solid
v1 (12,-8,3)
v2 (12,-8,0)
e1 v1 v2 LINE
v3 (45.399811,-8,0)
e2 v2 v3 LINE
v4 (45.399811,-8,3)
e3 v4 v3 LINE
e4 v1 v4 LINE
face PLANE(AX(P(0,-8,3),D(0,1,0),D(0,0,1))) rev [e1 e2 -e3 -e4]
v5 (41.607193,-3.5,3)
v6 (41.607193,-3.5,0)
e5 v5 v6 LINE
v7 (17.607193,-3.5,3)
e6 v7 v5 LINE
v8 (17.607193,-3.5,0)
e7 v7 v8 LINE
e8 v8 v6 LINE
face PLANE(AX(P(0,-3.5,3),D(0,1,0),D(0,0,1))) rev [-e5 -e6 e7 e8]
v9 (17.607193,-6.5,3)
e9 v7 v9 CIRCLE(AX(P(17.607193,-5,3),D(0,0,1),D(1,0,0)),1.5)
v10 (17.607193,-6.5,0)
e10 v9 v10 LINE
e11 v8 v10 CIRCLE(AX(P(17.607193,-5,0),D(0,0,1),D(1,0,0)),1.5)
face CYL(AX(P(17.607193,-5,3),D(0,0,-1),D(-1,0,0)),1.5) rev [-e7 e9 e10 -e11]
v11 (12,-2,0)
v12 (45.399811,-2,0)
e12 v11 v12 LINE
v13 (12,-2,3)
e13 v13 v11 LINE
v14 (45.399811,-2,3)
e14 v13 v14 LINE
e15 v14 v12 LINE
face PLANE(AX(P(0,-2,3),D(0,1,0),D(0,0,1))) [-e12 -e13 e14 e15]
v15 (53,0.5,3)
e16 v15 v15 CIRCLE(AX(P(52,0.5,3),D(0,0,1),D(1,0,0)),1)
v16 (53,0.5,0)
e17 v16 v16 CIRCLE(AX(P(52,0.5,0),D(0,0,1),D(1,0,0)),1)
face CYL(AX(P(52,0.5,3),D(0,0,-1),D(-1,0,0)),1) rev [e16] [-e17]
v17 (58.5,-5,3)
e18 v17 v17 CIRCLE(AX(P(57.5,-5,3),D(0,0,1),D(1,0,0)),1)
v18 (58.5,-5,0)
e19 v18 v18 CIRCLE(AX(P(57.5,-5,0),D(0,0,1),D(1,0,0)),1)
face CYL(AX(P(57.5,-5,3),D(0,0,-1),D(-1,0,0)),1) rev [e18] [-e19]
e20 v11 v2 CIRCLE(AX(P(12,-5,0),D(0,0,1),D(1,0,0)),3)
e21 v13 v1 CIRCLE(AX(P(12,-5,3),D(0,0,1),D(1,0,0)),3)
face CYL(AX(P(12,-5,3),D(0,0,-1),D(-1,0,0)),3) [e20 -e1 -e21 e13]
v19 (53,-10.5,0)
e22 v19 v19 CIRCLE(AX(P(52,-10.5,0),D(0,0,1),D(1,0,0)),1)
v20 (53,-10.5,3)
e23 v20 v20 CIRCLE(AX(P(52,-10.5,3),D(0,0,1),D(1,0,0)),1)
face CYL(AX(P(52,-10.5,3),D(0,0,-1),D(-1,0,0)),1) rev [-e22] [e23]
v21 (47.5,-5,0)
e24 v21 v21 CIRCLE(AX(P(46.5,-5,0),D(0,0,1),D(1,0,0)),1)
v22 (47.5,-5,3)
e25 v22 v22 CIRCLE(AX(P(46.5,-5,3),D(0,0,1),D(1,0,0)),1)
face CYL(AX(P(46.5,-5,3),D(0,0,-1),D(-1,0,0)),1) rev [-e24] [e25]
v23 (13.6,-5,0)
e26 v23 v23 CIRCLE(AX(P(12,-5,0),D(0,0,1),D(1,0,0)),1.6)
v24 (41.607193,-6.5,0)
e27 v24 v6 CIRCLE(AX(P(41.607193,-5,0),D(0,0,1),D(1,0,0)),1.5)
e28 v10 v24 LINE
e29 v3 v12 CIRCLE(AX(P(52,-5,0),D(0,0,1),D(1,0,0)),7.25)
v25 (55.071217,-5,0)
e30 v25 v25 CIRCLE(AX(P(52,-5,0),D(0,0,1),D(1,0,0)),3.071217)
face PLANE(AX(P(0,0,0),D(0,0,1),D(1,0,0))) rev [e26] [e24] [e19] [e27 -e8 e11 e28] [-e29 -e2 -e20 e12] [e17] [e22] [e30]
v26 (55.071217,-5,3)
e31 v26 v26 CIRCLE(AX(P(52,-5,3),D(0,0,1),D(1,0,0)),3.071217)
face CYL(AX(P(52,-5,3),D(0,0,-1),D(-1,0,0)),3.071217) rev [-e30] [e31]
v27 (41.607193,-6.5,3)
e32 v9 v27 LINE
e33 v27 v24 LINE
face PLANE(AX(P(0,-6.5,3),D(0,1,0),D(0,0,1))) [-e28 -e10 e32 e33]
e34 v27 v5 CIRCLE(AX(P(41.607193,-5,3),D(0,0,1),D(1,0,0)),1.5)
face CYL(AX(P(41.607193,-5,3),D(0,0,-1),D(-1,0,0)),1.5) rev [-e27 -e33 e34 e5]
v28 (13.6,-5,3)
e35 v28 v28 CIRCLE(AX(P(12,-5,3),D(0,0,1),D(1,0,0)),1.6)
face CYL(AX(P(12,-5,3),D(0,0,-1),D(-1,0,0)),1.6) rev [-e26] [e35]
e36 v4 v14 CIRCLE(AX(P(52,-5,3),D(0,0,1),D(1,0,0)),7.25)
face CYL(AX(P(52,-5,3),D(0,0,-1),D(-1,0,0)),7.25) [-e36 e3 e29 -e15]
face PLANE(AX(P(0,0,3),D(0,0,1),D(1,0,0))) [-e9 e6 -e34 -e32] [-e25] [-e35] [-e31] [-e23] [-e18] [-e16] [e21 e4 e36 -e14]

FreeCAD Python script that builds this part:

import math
import FreeCAD as App
import Part
import Sketcher
from FreeCAD import Vector
Q = App.Units.Quantity

doc = App.newDocument("Part")
body = doc.addObject("PartDesign::Body", "Body")

sketch1 = doc.addObject("Sketcher::SketchObject", "Sketch")
body.addObject(sketch1)
sketch1.AttachmentSupport = (doc.XY_Plane, [""])
sketch1.MapMode = "FlatFace"
sketch1.addGeometry([
    Part.LineSegment(Vector(12, -8, 0), Vector(45.4, -8, 0)),
    Part.ArcOfCircle(Part.Circle(Vector(52, -5, 0), Vector(0, 0, 1), 7.2), math.radians(-156), math.radians(156)),
    Part.LineSegment(Vector(45.4, -2, 0), Vector(12, -2, 0)),
    Part.ArcOfCircle(Part.Circle(Vector(12, -5, 0), Vector(0, 0, 1), 3), math.radians(90), math.radians(270)),
    Part.Circle(Vector(52, -10.5, 0), Vector(0, 0, 1), 1),
    Part.Circle(Vector(12, -5, 0), Vector(0, 0, 1), 1.6),
    Part.ArcOfCircle(Part.Circle(Vector(41.6, -5, 0), Vector(0, 0, 1), 1.5), math.radians(-90), math.radians(90)),
    Part.LineSegment(Vector(41.6, -6.5, 0), Vector(17.6, -6.5, 0)),
    Part.ArcOfCircle(Part.Circle(Vector(17.6, -5, 0), Vector(0, 0, 1), 1.5), math.radians(90), math.radians(270)),
    Part.LineSegment(Vector(17.6, -3.5, 0), Vector(41.6, -3.5, 0)),
    Part.Circle(Vector(46.5, -5, 0), Vector(0, 0, 1), 1),
    Part.Circle(Vector(52, -5, 0), Vector(0, 0, 1), 3.1),
    Part.Circle(Vector(57.5, -5, 0), Vector(0, 0, 1), 1),
    Part.Circle(Vector(52, 0.5, 0), Vector(0, 0, 1), 1),
], False)
sketch1.addConstraint([
    Sketcher.Constraint("Coincident", 0, 2, 1, 1),
    Sketcher.Constraint("Coincident", 1, 2, 2, 1),
    Sketcher.Constraint("Tangent", 2, 2, 3, 1),
    Sketcher.Constraint("Tangent", 3, 2, 0, 1),
    Sketcher.Constraint("Tangent", 6, 1, 7, 1),
    Sketcher.Constraint("Tangent", 7, 2, 8, 2),
    Sketcher.Constraint("Tangent", 8, 1, 9, 1),
    Sketcher.Constraint("Tangent", 9, 2, 6, 2),
    Sketcher.Constraint("Horizontal", 0),
    Sketcher.Constraint("Horizontal", 2),
    Sketcher.Constraint("Horizontal", 7),
    Sketcher.Constraint("Horizontal", 9),
    Sketcher.Constraint("Coincident", 5, 3, 3, 3),
    Sketcher.Constraint("Coincident", 11, 3, 1, 3),
    Sketcher.Constraint("Equal", 4, 10),
    Sketcher.Constraint("Equal", 10, 12),
    Sketcher.Constraint("Equal", 12, 13),
    Sketcher.Constraint("Horizontal", 1, 3, 3, 3),
    Sketcher.Constraint("Horizontal", 5, 3, 6, 3),
    Sketcher.Constraint("Horizontal", 8, 3, 10, 3),
    Sketcher.Constraint("Horizontal", 11, 3, 12, 3),
    Sketcher.Constraint("Vertical", 1, 3, 4, 3),
    Sketcher.Constraint("Vertical", 11, 3, 13, 3),
    Sketcher.Constraint("Diameter", 4, Q("2 mm")),
    Sketcher.Constraint("Radius", 3, Q("3 mm")),
    Sketcher.Constraint("Diameter", 5, Q("3.2 mm")),
    Sketcher.Constraint("Radius", 6, Q("1.5 mm")),
    Sketcher.Constraint("DistanceX", 7, 2, 7, 1, Q("24 mm")),
    Sketcher.Constraint("Radius", 1, Q("7.25 mm")),
    Sketcher.Constraint("DistanceX", -1, 1, 1, 3, Q("52 mm")),
    Sketcher.Constraint("DistanceY", 1, 3, -1, 1, Q("5 mm")),
    Sketcher.Constraint("DistanceX", -1, 1, 3, 3, Q("12 mm")),
    Sketcher.Constraint("DistanceX", 10, 3, 12, 3, Q("11 mm")),
    Sketcher.Constraint("DistanceY", 4, 3, 13, 3, Q("11 mm")),
    Sketcher.Constraint("DistanceY", 4, 3, -1, 1, Q("10.5 mm")),
    Sketcher.Constraint("DistanceX", -1, 1, 10, 3, Q("46.5 mm")),
    Sketcher.Constraint("Diameter", 11, Q("6.142435 mm")),
    Sketcher.Constraint("DistanceX", -1, 1, 6, 3, Q("41.607193 mm")),
])
pad1 = doc.addObject("PartDesign::Pad", "Pad")
body.addObject(pad1)
pad1.Profile = sketch1
pad1.Length = 3

doc.recompute()
